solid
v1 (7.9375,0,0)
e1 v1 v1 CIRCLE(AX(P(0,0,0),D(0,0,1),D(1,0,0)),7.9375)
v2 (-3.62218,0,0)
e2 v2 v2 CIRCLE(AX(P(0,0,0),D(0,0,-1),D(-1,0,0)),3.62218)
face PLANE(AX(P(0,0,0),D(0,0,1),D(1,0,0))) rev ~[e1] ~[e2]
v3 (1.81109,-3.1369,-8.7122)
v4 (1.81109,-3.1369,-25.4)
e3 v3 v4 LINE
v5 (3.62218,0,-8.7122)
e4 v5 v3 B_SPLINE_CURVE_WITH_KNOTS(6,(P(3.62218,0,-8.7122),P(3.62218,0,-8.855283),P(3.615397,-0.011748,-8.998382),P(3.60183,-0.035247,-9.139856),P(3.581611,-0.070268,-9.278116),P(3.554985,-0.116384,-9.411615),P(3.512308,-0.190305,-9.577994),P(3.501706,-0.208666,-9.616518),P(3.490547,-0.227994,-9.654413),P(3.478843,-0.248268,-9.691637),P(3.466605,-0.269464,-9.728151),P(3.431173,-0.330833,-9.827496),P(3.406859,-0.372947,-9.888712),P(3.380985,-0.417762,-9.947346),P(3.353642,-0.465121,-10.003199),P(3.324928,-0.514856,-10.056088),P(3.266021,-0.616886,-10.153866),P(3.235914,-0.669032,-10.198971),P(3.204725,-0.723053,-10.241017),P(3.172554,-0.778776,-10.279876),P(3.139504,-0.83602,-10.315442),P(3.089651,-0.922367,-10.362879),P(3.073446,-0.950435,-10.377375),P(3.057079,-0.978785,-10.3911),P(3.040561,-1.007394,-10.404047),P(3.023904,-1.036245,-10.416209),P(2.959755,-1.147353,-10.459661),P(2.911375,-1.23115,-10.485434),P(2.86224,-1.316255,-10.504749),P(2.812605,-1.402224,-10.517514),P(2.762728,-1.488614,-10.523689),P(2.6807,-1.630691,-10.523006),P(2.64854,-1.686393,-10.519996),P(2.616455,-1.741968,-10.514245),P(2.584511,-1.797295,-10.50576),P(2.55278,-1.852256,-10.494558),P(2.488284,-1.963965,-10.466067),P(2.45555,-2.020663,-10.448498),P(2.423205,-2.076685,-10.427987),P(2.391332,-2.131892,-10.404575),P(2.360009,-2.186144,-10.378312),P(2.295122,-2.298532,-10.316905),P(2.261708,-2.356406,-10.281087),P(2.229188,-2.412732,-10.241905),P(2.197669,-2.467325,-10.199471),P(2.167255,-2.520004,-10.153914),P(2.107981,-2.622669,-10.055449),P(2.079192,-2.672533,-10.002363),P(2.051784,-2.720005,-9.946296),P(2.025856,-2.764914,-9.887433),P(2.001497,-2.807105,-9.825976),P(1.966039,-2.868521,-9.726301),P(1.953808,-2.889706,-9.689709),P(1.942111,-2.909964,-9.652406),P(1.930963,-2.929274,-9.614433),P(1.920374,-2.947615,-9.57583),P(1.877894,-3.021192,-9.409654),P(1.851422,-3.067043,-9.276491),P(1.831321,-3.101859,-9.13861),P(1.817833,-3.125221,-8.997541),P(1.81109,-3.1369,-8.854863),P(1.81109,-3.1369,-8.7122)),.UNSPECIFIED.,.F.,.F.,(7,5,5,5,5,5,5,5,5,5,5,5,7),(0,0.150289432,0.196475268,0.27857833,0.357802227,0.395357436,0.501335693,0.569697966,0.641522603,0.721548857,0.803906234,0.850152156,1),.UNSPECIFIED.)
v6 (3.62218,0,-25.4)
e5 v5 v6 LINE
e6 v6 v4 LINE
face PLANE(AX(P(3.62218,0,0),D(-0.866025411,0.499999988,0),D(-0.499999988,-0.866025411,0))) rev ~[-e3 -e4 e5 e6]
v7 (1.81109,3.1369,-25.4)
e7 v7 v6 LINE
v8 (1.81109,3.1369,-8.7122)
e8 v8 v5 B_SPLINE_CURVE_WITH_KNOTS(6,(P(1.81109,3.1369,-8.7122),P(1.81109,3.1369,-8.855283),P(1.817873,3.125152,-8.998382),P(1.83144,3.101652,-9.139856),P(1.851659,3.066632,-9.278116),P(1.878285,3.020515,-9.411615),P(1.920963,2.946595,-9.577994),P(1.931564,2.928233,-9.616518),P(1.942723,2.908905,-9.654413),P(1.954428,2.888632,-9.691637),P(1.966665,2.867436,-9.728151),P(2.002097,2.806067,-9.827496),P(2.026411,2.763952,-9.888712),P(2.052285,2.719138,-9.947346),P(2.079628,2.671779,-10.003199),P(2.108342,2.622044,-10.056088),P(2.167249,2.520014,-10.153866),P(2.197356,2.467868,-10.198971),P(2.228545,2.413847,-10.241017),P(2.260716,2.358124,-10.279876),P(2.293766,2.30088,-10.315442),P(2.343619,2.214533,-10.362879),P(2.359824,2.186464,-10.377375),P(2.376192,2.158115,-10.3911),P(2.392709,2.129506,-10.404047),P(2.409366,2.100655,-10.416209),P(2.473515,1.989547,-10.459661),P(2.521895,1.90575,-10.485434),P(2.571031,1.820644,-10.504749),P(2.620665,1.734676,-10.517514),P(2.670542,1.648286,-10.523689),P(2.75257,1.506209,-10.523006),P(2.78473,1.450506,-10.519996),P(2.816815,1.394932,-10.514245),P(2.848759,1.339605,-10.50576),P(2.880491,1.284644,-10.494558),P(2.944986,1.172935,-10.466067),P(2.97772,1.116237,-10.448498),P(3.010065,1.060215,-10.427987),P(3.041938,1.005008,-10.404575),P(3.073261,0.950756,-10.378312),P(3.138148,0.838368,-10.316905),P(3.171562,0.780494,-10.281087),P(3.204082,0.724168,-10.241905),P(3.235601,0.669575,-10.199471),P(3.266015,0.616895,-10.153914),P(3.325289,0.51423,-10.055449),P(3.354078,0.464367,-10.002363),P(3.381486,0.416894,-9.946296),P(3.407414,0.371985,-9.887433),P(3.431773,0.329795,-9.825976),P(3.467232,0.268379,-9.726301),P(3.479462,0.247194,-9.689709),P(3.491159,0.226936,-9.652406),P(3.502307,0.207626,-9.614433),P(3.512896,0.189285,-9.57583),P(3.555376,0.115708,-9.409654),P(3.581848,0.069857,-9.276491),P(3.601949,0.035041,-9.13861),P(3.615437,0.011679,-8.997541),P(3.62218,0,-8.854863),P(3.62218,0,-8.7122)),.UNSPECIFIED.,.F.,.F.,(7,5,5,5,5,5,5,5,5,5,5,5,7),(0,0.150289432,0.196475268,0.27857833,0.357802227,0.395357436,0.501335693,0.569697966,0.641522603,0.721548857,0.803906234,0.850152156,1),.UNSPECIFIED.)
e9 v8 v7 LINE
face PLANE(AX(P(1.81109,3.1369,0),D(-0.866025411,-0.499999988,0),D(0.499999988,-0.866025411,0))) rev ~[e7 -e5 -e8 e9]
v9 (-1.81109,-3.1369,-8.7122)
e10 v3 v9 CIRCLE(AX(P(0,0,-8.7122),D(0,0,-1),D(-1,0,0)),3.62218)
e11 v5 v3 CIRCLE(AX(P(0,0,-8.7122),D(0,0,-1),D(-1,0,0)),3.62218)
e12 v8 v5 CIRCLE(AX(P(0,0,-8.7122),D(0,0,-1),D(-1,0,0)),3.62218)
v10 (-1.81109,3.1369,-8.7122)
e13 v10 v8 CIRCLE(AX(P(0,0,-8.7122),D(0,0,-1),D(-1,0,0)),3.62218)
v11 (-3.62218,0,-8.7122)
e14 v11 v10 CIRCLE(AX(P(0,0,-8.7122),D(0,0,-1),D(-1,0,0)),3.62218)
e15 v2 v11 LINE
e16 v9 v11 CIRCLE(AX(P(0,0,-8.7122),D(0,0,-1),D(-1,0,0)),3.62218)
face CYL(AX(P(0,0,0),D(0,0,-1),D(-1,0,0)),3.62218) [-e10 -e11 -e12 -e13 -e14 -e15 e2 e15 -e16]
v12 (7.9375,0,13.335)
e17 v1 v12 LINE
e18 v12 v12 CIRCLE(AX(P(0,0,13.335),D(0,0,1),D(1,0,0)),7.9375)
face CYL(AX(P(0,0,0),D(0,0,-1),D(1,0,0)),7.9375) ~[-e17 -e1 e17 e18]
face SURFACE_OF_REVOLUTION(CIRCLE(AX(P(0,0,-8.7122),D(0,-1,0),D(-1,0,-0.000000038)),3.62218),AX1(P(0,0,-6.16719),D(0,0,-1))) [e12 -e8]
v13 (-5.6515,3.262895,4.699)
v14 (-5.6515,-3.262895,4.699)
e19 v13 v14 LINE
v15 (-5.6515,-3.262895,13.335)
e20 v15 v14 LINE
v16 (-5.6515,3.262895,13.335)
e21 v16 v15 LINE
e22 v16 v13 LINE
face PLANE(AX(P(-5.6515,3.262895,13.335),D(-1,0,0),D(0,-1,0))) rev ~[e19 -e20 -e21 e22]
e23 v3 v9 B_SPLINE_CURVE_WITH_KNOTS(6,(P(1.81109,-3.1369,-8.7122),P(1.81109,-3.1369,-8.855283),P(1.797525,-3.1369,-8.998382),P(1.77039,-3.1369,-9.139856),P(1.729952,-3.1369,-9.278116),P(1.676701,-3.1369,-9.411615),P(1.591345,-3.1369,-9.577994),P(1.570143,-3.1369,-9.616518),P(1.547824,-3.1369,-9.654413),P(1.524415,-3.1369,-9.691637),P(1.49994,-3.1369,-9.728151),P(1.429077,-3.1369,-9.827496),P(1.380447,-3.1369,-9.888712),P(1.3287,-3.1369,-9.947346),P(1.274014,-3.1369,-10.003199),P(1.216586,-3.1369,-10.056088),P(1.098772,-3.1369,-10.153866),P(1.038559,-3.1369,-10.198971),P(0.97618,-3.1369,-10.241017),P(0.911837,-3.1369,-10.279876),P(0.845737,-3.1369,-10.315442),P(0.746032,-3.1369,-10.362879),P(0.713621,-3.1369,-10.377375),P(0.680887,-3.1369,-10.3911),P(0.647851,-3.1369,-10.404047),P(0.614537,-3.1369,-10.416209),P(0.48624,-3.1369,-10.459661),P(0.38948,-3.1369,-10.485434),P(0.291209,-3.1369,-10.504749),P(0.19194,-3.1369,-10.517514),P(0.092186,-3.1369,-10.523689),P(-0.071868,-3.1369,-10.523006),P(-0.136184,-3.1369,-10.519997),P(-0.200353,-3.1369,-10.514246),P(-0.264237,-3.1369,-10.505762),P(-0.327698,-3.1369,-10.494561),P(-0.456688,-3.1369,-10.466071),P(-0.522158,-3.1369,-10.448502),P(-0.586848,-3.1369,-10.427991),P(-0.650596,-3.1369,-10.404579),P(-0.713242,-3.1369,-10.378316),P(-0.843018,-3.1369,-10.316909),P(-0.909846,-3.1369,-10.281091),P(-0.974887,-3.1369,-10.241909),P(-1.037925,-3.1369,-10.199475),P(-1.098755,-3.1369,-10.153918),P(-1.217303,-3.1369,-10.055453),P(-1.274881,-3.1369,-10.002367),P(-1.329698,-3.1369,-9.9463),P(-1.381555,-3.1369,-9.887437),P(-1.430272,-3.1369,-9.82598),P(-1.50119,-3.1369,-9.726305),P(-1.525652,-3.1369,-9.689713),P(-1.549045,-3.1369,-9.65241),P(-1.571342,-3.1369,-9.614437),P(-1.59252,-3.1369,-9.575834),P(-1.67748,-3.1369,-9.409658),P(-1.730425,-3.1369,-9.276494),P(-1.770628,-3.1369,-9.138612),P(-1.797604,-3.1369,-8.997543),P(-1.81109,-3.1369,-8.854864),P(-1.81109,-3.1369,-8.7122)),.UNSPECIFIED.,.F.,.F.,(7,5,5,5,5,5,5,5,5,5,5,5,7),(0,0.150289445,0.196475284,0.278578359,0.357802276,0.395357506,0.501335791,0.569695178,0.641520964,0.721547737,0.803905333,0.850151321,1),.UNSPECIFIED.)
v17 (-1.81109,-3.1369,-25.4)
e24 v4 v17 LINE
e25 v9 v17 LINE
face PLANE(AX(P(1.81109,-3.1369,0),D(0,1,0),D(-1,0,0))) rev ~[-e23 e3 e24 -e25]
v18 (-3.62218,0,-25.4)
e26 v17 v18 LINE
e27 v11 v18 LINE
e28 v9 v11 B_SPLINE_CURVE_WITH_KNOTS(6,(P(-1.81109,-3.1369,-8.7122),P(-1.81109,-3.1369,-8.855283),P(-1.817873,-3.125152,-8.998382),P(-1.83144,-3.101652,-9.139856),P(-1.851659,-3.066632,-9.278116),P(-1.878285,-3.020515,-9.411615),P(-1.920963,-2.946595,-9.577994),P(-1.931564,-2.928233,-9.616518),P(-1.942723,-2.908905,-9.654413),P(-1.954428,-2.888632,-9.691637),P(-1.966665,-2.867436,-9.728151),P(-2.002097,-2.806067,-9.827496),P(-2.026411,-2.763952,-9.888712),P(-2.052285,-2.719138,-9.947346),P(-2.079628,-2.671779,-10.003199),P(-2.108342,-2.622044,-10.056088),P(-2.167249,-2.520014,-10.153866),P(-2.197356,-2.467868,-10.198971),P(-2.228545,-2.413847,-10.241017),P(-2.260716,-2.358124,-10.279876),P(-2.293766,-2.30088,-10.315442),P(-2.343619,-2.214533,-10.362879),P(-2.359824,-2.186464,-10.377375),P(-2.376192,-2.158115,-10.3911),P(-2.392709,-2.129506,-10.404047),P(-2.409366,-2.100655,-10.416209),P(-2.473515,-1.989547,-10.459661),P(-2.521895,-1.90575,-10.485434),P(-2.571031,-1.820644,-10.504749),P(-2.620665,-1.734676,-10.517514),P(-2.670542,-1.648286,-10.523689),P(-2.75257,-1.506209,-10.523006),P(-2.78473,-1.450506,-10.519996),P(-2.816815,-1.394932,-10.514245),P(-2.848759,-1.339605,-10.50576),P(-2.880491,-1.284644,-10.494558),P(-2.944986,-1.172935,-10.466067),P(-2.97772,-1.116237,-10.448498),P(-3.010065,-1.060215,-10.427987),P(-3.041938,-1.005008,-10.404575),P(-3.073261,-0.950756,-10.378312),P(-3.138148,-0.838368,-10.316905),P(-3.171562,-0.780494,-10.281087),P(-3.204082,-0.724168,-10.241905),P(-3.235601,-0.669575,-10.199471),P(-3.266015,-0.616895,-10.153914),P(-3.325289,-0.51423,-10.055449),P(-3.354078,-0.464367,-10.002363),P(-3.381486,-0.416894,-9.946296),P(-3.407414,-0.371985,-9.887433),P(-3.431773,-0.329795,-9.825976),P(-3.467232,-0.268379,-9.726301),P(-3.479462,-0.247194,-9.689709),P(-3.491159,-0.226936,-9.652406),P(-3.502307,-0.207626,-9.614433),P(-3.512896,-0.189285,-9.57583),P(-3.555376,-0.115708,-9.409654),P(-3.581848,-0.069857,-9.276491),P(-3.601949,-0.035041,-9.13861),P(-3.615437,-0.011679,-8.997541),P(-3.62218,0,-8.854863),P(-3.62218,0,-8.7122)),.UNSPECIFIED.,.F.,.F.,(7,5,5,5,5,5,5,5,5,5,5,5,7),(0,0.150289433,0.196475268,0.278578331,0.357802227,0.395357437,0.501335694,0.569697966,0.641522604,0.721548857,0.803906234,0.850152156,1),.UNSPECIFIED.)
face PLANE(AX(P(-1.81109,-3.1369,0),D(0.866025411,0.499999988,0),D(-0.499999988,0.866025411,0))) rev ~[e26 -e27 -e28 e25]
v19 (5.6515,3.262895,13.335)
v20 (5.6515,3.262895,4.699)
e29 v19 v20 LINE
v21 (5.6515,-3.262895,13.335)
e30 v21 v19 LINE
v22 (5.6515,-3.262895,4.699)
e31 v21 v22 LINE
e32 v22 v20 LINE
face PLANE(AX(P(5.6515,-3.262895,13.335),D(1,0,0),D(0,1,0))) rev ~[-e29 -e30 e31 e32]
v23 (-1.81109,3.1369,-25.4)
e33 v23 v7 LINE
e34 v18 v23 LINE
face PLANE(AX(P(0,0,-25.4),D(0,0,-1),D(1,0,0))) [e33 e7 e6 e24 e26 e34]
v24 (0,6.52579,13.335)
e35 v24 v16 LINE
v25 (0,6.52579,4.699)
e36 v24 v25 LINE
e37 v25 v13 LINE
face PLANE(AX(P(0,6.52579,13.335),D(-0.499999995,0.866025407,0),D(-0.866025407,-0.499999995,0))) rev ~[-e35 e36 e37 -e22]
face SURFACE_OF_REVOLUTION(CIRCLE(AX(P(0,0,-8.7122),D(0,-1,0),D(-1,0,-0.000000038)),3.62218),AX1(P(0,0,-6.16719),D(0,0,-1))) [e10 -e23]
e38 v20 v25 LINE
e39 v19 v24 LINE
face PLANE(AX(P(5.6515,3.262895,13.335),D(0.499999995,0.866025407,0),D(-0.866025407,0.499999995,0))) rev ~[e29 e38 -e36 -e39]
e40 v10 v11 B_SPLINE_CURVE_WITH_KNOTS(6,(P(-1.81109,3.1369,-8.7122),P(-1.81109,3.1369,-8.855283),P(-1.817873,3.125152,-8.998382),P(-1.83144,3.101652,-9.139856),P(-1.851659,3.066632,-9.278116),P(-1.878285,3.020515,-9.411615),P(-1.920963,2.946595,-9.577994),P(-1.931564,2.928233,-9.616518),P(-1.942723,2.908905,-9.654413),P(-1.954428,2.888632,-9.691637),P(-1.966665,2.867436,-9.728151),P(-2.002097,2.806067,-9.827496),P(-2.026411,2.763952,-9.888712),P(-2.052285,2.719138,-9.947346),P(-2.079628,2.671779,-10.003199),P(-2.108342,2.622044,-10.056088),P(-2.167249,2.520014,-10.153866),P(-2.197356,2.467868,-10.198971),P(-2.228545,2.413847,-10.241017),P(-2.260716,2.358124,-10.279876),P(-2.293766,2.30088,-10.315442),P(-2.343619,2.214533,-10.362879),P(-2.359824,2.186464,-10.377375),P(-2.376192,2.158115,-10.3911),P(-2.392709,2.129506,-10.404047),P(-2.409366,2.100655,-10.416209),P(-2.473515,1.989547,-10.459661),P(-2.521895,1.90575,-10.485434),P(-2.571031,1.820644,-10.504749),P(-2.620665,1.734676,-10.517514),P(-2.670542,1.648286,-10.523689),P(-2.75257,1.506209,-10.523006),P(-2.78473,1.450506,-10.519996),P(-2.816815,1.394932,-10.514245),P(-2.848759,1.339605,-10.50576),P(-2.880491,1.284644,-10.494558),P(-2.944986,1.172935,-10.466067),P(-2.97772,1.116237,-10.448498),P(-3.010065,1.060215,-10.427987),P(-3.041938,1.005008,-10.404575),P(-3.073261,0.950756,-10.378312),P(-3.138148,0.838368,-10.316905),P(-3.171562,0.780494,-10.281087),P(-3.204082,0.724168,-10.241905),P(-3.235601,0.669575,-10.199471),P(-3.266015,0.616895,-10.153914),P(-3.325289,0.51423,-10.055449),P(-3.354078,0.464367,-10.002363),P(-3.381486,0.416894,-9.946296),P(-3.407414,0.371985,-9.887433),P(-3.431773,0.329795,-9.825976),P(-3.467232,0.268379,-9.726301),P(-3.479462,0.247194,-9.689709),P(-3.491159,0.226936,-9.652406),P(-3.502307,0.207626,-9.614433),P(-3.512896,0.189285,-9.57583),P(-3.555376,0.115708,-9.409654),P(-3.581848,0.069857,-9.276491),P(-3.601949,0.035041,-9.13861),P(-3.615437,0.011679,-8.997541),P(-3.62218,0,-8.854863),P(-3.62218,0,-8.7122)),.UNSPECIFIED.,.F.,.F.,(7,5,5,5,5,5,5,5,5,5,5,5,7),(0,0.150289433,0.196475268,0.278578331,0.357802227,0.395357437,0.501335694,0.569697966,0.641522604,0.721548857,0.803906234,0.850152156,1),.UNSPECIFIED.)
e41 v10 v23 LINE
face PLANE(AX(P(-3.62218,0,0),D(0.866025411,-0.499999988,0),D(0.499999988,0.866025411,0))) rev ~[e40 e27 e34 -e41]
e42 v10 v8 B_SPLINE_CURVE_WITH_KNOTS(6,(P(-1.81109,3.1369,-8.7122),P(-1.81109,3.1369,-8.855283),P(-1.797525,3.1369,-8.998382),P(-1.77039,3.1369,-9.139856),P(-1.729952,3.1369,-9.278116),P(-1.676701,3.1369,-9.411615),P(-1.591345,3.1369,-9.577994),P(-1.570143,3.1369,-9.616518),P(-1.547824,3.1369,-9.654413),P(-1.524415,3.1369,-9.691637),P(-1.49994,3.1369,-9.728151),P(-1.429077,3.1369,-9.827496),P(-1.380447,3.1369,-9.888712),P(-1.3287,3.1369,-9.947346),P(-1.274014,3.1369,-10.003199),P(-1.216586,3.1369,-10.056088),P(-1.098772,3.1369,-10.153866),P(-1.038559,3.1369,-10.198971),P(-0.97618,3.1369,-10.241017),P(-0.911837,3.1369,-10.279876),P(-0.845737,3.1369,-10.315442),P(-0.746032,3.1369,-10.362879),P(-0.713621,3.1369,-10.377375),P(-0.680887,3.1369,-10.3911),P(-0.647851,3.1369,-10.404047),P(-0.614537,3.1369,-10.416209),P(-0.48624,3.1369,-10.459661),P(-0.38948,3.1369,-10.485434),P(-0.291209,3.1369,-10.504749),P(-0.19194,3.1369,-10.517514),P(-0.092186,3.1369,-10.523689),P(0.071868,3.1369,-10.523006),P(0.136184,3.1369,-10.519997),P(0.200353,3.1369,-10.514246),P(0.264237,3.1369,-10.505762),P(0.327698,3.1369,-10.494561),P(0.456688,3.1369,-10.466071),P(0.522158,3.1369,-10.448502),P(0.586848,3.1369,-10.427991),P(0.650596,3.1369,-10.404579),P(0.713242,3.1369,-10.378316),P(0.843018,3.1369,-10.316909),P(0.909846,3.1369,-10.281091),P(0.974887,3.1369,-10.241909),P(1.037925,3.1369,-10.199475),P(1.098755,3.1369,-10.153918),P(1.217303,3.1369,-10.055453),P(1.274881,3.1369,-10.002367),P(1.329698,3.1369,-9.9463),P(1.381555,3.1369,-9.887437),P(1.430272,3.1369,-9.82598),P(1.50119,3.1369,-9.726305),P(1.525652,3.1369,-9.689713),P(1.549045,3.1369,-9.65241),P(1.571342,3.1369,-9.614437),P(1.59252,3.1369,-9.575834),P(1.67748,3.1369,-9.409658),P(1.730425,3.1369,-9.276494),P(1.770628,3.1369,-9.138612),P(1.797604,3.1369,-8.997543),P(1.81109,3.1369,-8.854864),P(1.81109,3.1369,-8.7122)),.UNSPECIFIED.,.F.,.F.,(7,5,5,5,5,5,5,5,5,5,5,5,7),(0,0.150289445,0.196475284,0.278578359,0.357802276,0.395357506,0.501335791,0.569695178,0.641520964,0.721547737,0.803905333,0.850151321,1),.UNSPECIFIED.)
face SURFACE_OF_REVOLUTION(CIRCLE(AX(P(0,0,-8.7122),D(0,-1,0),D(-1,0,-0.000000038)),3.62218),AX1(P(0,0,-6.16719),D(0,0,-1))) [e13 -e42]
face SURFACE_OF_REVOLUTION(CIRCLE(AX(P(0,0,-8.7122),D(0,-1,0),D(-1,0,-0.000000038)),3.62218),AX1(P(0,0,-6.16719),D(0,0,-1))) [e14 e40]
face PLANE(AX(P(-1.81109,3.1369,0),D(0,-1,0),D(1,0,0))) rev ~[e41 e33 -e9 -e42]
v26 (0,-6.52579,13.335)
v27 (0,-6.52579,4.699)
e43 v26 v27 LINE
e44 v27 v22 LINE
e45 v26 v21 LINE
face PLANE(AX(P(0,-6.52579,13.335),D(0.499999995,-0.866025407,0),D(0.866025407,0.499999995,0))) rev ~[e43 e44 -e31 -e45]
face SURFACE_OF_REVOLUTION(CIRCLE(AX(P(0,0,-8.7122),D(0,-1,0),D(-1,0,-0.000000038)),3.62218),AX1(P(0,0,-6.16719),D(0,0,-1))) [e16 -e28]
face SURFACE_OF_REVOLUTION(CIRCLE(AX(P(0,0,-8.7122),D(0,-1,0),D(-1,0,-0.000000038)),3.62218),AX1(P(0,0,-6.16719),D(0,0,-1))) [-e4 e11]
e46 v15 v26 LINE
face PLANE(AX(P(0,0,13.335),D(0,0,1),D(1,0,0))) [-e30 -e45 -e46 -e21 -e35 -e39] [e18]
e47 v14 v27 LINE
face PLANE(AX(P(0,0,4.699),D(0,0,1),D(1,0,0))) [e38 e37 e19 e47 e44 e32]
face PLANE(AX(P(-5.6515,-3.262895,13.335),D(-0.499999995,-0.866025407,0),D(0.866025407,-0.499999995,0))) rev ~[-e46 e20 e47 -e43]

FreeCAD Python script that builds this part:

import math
import FreeCAD as App
import Part
import Sketcher

V = App.Vector
Q = App.Units.Quantity

doc = App.newDocument("Part")
params = doc.addObject("Spreadsheet::Sheet", "Params")
for row, (alias, value) in enumerate([
    ("sketch1_diameter", "0.625 in"),
    ("pad1_length", "0.525 in"),
    ("pocket1_length", "0.34 in"),
    ("pad2_length", "1 in"),
    ("sketch4_height", "0.343 in"),
    ("revolution_angle", "360 deg"),
], start=1):
    params.set(f"A{row}", alias)
    params.set(f"B{row}", "=" + value)
    params.setAlias(f"B{row}", alias)

body = doc.addObject("PartDesign::Body", "Body")

sketch1 = doc.addObject("Sketcher::SketchObject", "Sketch")
body.addObject(sketch1)
sketch1.AttachmentSupport = (doc.XY_Plane, [""])
sketch1.MapMode = "FlatFace"
sketch1.addGeometry(Part.Circle(V(0, 0, 0), V(0, 0, 1), 8), False)
sketch1.addConstraint([
    Sketcher.Constraint("Coincident", 0, 3, -1, 1),
    Sketcher.Constraint("Diameter", 0, Q("0.625 in")),
])
sketch1.setExpression("Constraints[1]", "Params.sketch1_diameter")
pad1 = doc.addObject("PartDesign::Pad", "Pad")
body.addObject(pad1)
pad1.Profile = sketch1
pad1.setExpression("Length", "Params.pad1_length")

sketch2 = doc.addObject("Sketcher::SketchObject", "Sketch001")
body.addObject(sketch2)
sketch2.AttachmentSupport = (doc.XY_Plane, [""])
sketch2.MapMode = "FlatFace"
sketch2.AttachmentOffset = App.Placement(V(0, 0, 0.525 * 25.4), App.Rotation())
sketch2.addGeometry([
    Part.LineSegment(V(6, -3, 0), V(6, 3, 0)),
    Part.LineSegment(V(6, 3, 0), V(0, 7, 0)),
    Part.LineSegment(V(0, 7, 0), V(-6, 3, 0)),
    Part.LineSegment(V(-6, 3, 0), V(-6, -3, 0)),
    Part.LineSegment(V(-6, -3, 0), V(0, -7, 0)),
    Part.LineSegment(V(0, -7, 0), V(6, -3, 0)),
], False)
sketch2.addConstraint([
    Sketcher.Constraint("Coincident", 0, 2, 1, 1),
    Sketcher.Constraint("Coincident", 1, 2, 2, 1),
    Sketcher.Constraint("Coincident", 2, 2, 3, 1),
    Sketcher.Constraint("Coincident", 3, 2, 4, 1),
    Sketcher.Constraint("Coincident", 4, 2, 5, 1),
    Sketcher.Constraint("Coincident", 5, 2, 0, 1),
    Sketcher.Constraint("Vertical", 0),
    Sketcher.Constraint("Vertical", 3),
    Sketcher.Constraint("Symmetric", 0, 2, 3, 2, -1, 1),
    Sketcher.Constraint("Symmetric", 1, 2, 4, 2, -1, 1),
    Sketcher.Constraint("PointOnObject", 1, 2, -2),
    Sketcher.Constraint("Parallel", 2, 5),
    Sketcher.Constraint("Horizontal", 0, 2, 2, 2),
    Sketcher.Constraint("Angle", 1, Q("150 deg")),
    Sketcher.Constraint("DistanceX", 2, 2, 0, 2, Q("0.445 in")),
    Sketcher.Constraint("DistanceY", 0, 1, 0, 2, 6.52579),
])
pocket1 = doc.addObject("PartDesign::Pocket", "Pocket")
body.addObject(pocket1)
pocket1.Profile = sketch2
pocket1.setExpression("Length", "Params.pocket1_length")

sketch3 = doc.addObject("Sketcher::SketchObject", "Sketch002")
body.addObject(sketch3)
sketch3.AttachmentSupport = (doc.XY_Plane, [""])
sketch3.MapMode = "FlatFace"
sketch3.addGeometry([
    Part.LineSegment(V(-1.8, 3.1, 0), V(1.8, 3.1, 0)),
    Part.LineSegment(V(1.8, 3.1, 0), V(3.6, 0, 0)),
    Part.LineSegment(V(3.6, 0, 0), V(1.8, -3.1, 0)),
    Part.LineSegment(V(1.8, -3.1, 0), V(-1.8, -3.1, 0)),
    Part.LineSegment(V(-1.8, -3.1, 0), V(-3.6, 0, 0)),
    Part.LineSegment(V(-3.6, 0, 0), V(-1.8, 3.1, 0)),
], False)
sketch3.addConstraint([
    Sketcher.Constraint("Coincident", 0, 2, 1, 1),
    Sketcher.Constraint("Coincident", 1, 2, 2, 1),
    Sketcher.Constraint("Coincident", 2, 2, 3, 1),
    Sketcher.Constraint("Coincident", 3, 2, 4, 1),
    Sketcher.Constraint("Coincident", 4, 2, 5, 1),
    Sketcher.Constraint("Coincident", 5, 2, 0, 1),
    Sketcher.Constraint("Horizontal", 0),
    Sketcher.Constraint("Horizontal", 3),
    Sketcher.Constraint("Symmetric", 0, 2, 3, 2, -1, 1),
    Sketcher.Constraint("Symmetric", 1, 2, 4, 2, -1, 1),
    Sketcher.Constraint("PointOnObject", 1, 2, -1),
    Sketcher.Constraint("Parallel", 2, 5),
    Sketcher.Constraint("Vertical", 0, 2, 2, 2),
    Sketcher.Constraint("Angle", 1, Q("-60.000001 deg")),
    Sketcher.Constraint("DistanceY", 2, 2, 0, 2, Q("0.247 in")),
    Sketcher.Constraint("DistanceX", 0, 1, 0, 2, 3.62218),
])
pad2 = doc.addObject("PartDesign::Pad", "Pad001")
body.addObject(pad2)
pad2.Profile = sketch3
pad2.setExpression("Length", "Params.pad2_length")
pad2.Reversed = True

sketch4 = doc.addObject("Sketcher::SketchObject", "Sketch003")
body.addObject(sketch4)
sketch4.AttachmentSupport = (doc.XZ_Plane, [""])
sketch4.MapMode = "FlatFace"
sketch4.addGeometry([
    Part.LineSegment(V(0, 0, 0), V(-3.6, 0, 0)),
    Part.LineSegment(V(-3.6, 0, 0), V(-3.6, -8.7, 0)),
    Part.ArcOfCircle(Part.Circle(V(0, -8.7, 0), V(0, 0, 1), 3.6), math.radians(-180), math.radians(-90)),
    Part.LineSegment(V(0, -12.3, 0), V(0, 0, 0)),
], False)
sketch4.addConstraint([
    Sketcher.Constraint("Coincident", 0, 2, 1, 1),
    Sketcher.Constraint("Tangent", 1, 2, 2, 1),
    Sketcher.Constraint("Coincident", 2, 2, 3, 1),
    Sketcher.Constraint("Coincident", 3, 2, 0, 1),
    Sketcher.Constraint("Horizontal", 0),
    Sketcher.Constraint("Vertical", 1),
    Sketcher.Constraint("Vertical", 3),
    Sketcher.Constraint("Coincident", 3, 2, -1, 1),
    Sketcher.Constraint("PointOnObject", 2, 3, -2),
    Sketcher.Constraint("DistanceY", 1, 2, 1, 1, Q("0.343 in")),
    Sketcher.Constraint("Radius", 2, 3.62218),
])
sketch4.setExpression("Constraints[9]", "Params.sketch4_height")
revolution = doc.addObject("PartDesign::Revolution", "Revolution")
body.addObject(revolution)
revolution.Profile = sketch4
revolution.ReferenceAxis = (sketch4, ["V_Axis"])
revolution.setExpression("Angle", "Params.revolution_angle")

doc.recompute()
